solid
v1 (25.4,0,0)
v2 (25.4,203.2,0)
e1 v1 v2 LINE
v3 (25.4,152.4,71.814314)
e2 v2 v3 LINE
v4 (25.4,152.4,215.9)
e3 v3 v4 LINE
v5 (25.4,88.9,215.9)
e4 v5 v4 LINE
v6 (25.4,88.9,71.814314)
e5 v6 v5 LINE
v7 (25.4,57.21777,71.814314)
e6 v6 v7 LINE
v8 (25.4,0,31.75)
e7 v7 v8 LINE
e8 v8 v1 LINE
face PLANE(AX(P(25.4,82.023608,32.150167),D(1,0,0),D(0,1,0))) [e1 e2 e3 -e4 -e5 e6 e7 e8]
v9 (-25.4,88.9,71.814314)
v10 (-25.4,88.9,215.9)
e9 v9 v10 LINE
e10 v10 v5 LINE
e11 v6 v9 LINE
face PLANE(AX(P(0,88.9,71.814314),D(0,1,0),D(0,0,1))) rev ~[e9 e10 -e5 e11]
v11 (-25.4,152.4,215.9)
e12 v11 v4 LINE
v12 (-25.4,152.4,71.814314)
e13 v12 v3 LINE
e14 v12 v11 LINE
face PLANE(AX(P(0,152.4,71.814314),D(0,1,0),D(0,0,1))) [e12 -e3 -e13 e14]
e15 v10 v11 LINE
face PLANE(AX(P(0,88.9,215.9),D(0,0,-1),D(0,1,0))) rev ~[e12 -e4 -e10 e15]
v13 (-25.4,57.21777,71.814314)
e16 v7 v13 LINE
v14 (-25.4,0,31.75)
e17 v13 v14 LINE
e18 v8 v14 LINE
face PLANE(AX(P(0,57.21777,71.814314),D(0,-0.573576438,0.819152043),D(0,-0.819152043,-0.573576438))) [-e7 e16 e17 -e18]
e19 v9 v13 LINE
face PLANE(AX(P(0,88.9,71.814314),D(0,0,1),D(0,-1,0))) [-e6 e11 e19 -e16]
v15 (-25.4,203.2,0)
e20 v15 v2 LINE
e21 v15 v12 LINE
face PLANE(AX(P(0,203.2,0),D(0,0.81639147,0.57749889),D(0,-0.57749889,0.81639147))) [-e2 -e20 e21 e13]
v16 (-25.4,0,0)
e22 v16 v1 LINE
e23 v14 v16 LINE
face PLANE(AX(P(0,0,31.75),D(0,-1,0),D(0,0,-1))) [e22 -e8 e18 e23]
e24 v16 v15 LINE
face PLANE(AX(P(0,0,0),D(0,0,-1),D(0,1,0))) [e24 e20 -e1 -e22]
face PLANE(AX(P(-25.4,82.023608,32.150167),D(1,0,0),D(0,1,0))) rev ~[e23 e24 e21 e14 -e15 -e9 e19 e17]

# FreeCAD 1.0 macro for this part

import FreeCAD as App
import Part
import Sketcher

V = App.Vector
Q = App.Units.Quantity

doc = App.newDocument("Part")
body = doc.addObject("PartDesign::Body", "Body")

# Sketch on YZ plane
sketch1 = body.newObject("Sketcher::SketchObject", "Sketch")
sketch1.AttachmentSupport = (doc.getObject("YZ_Plane"), [""])
sketch1.MapMode = "FlatFace"
sketch1.addGeometry(Part.LineSegment(V(0, 32, 0), V(0, 0, 0)), False)
sketch1.addGeometry(Part.LineSegment(V(0, 0, 0), V(203, 0, 0)), False)
sketch1.addGeometry(Part.LineSegment(V(203, 0, 0), V(152, 72, 0)), False)
sketch1.addGeometry(Part.LineSegment(V(152, 72, 0), V(152, 216, 0)), False)
sketch1.addGeometry(Part.LineSegment(V(152, 216, 0), V(89, 216, 0)), False)
sketch1.addGeometry(Part.LineSegment(V(89, 216, 0), V(89, 72, 0)), False)
sketch1.addGeometry(Part.LineSegment(V(89, 72, 0), V(57, 72, 0)), False)
sketch1.addGeometry(Part.LineSegment(V(57, 72, 0), V(0, 32, 0)), False)
sketch1.addConstraint(Sketcher.Constraint("Coincident", 0, 2, 1, 1))
sketch1.addConstraint(Sketcher.Constraint("Coincident", 1, 2, 2, 1))
sketch1.addConstraint(Sketcher.Constraint("Coincident", 2, 2, 3, 1))
sketch1.addConstraint(Sketcher.Constraint("Coincident", 3, 2, 4, 1))
sketch1.addConstraint(Sketcher.Constraint("Coincident", 4, 2, 5, 1))
sketch1.addConstraint(Sketcher.Constraint("Coincident", 5, 2, 6, 1))
sketch1.addConstraint(Sketcher.Constraint("Coincident", 6, 2, 7, 1))
sketch1.addConstraint(Sketcher.Constraint("Coincident", 7, 2, 0, 1))
sketch1.addConstraint(Sketcher.Constraint("Vertical", 0))
sketch1.addConstraint(Sketcher.Constraint("Horizontal", 1))
sketch1.addConstraint(Sketcher.Constraint("Vertical", 3))
sketch1.addConstraint(Sketcher.Constraint("Horizontal", 4))
sketch1.addConstraint(Sketcher.Constraint("Vertical", 5))
sketch1.addConstraint(Sketcher.Constraint("Horizontal", 6))
sketch1.addConstraint(Sketcher.Constraint("Coincident", 0, 2, -1, 1))
sketch1.addConstraint(Sketcher.Constraint("Horizontal", 2, 2, 5, 2))
sketch1.addConstraint(Sketcher.Constraint("DistanceX", 1, 1, 1, 2, Q("8 in")))
sketch1.addConstraint(Sketcher.Constraint("DistanceX", 4, 2, 4, 1, Q("2.5 in")))
sketch1.addConstraint(Sketcher.Constraint("DistanceX", -1, 1, 2, 2, Q("6 in")))
sketch1.addConstraint(Sketcher.Constraint("Angle", 7, Q("-145 deg")))
sketch1.addConstraint(Sketcher.Constraint("DistanceY", 0, 2, 0, 1, Q("1.25 in")))
sketch1.addConstraint(Sketcher.Constraint("DistanceY", -1, 1, 3, 2, Q("8.5 in")))
sketch1.addConstraint(Sketcher.Constraint("Distance", 7, Q("2.75 in")))
pad1 = body.newObject("PartDesign::Pad", "Pad")
pad1.Profile = sketch1
pad1.Length = Q("2 in")
pad1.Midplane = True

doc.recompute()
